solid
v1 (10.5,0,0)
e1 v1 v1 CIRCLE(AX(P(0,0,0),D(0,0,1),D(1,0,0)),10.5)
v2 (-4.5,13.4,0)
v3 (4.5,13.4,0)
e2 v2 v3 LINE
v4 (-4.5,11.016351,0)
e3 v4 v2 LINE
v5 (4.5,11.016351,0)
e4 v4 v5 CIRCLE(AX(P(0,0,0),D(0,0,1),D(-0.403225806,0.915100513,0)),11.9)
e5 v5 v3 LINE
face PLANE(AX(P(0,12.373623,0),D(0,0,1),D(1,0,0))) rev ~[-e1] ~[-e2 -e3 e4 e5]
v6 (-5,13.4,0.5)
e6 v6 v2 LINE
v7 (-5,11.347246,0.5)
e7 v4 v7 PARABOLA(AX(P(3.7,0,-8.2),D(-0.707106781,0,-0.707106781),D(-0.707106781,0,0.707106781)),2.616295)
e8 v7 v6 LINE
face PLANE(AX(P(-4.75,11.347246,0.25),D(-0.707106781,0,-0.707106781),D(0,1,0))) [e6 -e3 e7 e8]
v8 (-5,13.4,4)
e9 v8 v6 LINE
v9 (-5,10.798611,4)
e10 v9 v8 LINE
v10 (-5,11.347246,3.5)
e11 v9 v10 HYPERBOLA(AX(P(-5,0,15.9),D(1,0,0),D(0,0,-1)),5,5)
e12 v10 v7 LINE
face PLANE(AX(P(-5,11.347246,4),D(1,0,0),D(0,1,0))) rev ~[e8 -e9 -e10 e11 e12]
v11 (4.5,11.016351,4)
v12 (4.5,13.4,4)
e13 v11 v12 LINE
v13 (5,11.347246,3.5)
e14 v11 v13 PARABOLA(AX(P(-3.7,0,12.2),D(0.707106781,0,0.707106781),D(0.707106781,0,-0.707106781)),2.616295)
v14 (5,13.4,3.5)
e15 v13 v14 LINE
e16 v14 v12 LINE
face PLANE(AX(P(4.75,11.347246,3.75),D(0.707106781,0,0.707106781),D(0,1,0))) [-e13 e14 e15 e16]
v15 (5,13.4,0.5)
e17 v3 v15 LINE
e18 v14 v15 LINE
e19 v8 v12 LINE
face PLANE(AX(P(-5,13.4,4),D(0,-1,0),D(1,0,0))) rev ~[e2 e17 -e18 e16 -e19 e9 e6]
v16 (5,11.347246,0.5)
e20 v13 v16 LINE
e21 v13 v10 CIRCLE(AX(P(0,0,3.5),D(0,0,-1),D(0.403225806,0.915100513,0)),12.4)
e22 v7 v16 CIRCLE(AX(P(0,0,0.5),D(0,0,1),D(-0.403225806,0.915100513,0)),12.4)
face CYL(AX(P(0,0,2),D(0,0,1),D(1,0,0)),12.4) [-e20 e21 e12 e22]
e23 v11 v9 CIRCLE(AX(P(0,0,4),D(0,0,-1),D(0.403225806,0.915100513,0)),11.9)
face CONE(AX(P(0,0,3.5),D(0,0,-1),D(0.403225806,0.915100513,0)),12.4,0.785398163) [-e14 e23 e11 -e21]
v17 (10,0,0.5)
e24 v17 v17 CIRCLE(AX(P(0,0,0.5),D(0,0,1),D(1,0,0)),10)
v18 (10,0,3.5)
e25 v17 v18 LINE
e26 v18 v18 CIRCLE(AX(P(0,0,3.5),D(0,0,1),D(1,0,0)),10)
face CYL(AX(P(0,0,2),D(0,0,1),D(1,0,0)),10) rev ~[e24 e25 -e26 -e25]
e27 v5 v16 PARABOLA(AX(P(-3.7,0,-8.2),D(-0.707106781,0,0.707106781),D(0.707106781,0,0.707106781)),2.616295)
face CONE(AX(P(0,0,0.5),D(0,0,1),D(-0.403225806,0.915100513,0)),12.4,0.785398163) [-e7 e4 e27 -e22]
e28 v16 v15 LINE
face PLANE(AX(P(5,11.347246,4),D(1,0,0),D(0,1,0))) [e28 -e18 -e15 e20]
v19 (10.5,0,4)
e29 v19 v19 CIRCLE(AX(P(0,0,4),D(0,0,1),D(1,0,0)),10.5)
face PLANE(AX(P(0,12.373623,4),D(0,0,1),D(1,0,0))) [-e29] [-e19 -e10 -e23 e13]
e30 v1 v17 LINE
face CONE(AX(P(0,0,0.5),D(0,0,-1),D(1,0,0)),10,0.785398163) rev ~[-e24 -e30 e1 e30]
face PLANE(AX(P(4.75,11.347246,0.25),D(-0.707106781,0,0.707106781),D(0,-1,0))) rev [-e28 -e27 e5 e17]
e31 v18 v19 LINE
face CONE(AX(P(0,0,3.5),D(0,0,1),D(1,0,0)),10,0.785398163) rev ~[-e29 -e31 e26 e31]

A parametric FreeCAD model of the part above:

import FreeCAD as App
import Part
import Sketcher

V = App.Vector
Q = App.Units.Quantity


def edges_at(feature, points):
    """Names of the edges that pass closest to the given points."""
    edges = feature.Shape.Edges
    near = lambda p: min(range(len(edges)), key=lambda i: edges[i].distToShape(Part.Vertex(*p))[0])
    return sorted({f"Edge{near(p) + 1}" for p in points})


def add_polygon(sketch, points):
    """Adds a closed chain of lines whose ends are joined by coincident constraints."""
    first, n = sketch.GeometryCount, len(points)
    for a, b in zip(points, points[1:] + points[:1]):
        sketch.addGeometry(Part.LineSegment(App.Vector(*a, 0), App.Vector(*b, 0)), False)
    for i in range(n):
        sketch.addConstraint(Sketcher.Constraint("Coincident", first + i, 2, first + (i + 1) % n, 1))

doc = App.newDocument("Part")
body = doc.addObject("PartDesign::Body", "Body")

sketch1 = body.newObject("Sketcher::SketchObject", "Sketch")
sketch1.AttachmentSupport = (doc.getObject("XZ_Plane"), [""])
sketch1.MapMode = "FlatFace"
add_polygon(sketch1, [(10, 4), (10, 0), (12.4, 0), (12.4, 4)])
sketch1.addConstraint([
    Sketcher.Constraint("Vertical", 0),
    Sketcher.Constraint("Horizontal", 1),
    Sketcher.Constraint("Vertical", 2),
    Sketcher.Constraint("Horizontal", 3),
    Sketcher.Constraint("PointOnObject", 0, 2, -1),
    Sketcher.Constraint("DistanceY", 0, 2, 0, 1, Q("4 mm")),
    Sketcher.Constraint("DistanceX", 1, 1, 1, 2, Q("2.4 mm")),
    Sketcher.Constraint("DistanceX", -1, 1, 0, 2, Q("10 mm")),
])
revolution = body.newObject("PartDesign::Revolution", "Revolution")
revolution.Profile = sketch1
revolution.ReferenceAxis = (sketch1, ["V_Axis"])
revolution.Angle = 360

sketch2 = body.newObject("Sketcher::SketchObject", "Sketch001")
sketch2.AttachmentSupport = (doc.getObject("XY_Plane"), [""])
sketch2.MapMode = "FlatFace"
sketch2.AttachmentOffset = App.Placement(V(0, 0, 4), App.Rotation())
add_polygon(sketch2, [(-5, 13.4), (-5, 11.3), (5, 11.3), (5, 13.4)])
sketch2.addConstraint([
    Sketcher.Constraint("Vertical", 0),
    Sketcher.Constraint("Horizontal", 1),
    Sketcher.Constraint("Vertical", 2),
    Sketcher.Constraint("Horizontal", 3),
    Sketcher.Constraint("DistanceX", 1, 1, 1, 2, Q("10 mm")),
    Sketcher.Constraint("DistanceX", 0, 2, -1, 1, Q("5 mm")),
    Sketcher.Constraint("DistanceY", -1, 1, 2, 2, Q("13.4 mm")),
    Sketcher.Constraint("DistanceY", 0, 2, 0, 1, Q("2.052754 mm")),
])
pad1 = body.newObject("PartDesign::Pad", "Pad")
pad1.Profile = sketch2
pad1.Type = "UpToLast"
pad1.Reversed = True
doc.recompute()

chamfer = body.newObject("PartDesign::Chamfer", "Chamfer")
chamfer.Base = (pad1, edges_at(pad1, [
    (0, -12.4, 4),
    (5, 12.374, 4),
    (0, -12.4, 0),
    (5, 12.374, 0),
    (-5, 12.374, 0),
    (-10, 0, 4),
    (-10, 0, 0),
]))
chamfer.Size = 0.5

doc.recompute()
